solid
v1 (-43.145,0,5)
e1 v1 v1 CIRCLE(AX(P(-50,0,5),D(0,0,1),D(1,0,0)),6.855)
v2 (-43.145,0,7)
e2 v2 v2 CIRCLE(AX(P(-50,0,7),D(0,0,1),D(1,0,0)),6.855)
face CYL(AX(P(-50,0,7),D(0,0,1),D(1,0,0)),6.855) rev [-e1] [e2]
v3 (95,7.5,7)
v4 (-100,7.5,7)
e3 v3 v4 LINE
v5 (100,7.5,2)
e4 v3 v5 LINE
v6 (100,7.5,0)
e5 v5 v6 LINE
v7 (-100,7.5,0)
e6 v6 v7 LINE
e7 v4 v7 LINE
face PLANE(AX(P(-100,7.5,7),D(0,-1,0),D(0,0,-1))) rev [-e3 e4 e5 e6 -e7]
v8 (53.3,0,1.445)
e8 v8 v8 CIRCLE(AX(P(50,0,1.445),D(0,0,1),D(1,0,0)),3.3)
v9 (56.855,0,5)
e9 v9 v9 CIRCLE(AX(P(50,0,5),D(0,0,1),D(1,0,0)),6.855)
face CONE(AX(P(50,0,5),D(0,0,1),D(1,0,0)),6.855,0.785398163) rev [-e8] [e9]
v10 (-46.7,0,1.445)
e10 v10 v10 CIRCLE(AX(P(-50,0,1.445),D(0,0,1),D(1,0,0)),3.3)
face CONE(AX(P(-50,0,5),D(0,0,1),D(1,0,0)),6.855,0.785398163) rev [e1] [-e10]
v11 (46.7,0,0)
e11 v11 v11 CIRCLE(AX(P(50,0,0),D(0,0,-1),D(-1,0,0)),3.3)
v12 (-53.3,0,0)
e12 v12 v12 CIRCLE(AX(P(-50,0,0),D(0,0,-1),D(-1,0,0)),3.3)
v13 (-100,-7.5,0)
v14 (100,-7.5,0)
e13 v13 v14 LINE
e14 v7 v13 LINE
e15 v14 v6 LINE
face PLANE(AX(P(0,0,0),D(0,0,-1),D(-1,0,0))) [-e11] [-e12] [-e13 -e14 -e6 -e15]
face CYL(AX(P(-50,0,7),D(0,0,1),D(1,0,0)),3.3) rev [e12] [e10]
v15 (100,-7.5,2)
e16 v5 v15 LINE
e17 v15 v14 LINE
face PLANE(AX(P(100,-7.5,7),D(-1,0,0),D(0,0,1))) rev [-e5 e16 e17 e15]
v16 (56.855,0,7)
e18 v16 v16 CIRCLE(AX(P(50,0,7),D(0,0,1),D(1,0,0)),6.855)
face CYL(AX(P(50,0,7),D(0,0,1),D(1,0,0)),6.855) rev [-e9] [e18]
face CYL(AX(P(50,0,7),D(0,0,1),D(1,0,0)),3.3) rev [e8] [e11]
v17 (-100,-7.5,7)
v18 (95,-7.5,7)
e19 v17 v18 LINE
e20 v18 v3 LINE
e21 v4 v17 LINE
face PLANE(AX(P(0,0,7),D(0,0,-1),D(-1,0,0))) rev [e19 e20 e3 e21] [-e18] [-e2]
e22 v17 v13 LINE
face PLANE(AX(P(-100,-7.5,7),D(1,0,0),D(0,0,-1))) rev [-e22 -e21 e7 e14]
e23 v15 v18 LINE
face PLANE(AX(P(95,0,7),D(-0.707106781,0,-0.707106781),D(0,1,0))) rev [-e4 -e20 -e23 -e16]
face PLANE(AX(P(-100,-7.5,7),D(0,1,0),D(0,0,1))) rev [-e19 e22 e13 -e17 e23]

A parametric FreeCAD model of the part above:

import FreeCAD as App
import Part
import Sketcher

V = App.Vector
Q = App.Units.Quantity


def edges_at(feature, points):
    """Names of the edges that pass closest to the given points."""
    edges = feature.Shape.Edges
    near = lambda p: min(range(len(edges)), key=lambda i: edges[i].distToShape(Part.Vertex(*p))[0])
    return sorted({f"Edge{near(p) + 1}" for p in points})


def add_polygon(sketch, points):
    """Adds a closed chain of lines whose ends are joined by coincident constraints."""
    first, n = sketch.GeometryCount, len(points)
    for a, b in zip(points, points[1:] + points[:1]):
        sketch.addGeometry(Part.LineSegment(App.Vector(*a, 0), App.Vector(*b, 0)), False)
    for i in range(n):
        sketch.addConstraint(Sketcher.Constraint("Coincident", first + i, 2, first + (i + 1) % n, 1))

doc = App.newDocument("Part")
params = doc.addObject("Spreadsheet::Sheet", "Params")
for row, (alias, value) in enumerate([
    ("sketch1_width", "200 mm"),
    ("sketch1_height", "15 mm"),
    ("pad1_length", "7 mm"),
    ("chamfer_size", "5 mm"),
    ("sketch2_height", "2 mm"),
    ("groove_angle", "360 deg"),
    ("linearpattern_pitch", "100 mm"),
], start=1):
    params.set(f"A{row}", alias)
    params.set(f"B{row}", "=" + value)
    params.setAlias(f"B{row}", alias)

body = doc.addObject("PartDesign::Body", "Body")

sketch1 = doc.addObject("Sketcher::SketchObject", "Sketch")
body.addObject(sketch1)
sketch1.AttachmentSupport = (doc.XY_Plane, [""])
sketch1.MapMode = "FlatFace"
add_polygon(sketch1, [(-100, 8), (-100, -8), (100, -8), (100, 8)])
sketch1.addConstraint(Sketcher.Constraint("Vertical", 0))
sketch1.addConstraint(Sketcher.Constraint("Horizontal", 1))
sketch1.addConstraint(Sketcher.Constraint("Vertical", 2))
sketch1.addConstraint(Sketcher.Constraint("Horizontal", 3))
sketch1.addConstraint(Sketcher.Constraint("Symmetric", 0, 2, 2, 2, -1, 1))
sketch1.addConstraint(Sketcher.Constraint("DistanceX", 1, 1, 1, 2, Q("200 mm")))
sketch1.addConstraint(Sketcher.Constraint("DistanceY", 0, 2, 0, 1, Q("15 mm")))
sketch1.setExpression("Constraints[9]", "Params.sketch1_width")
sketch1.setExpression("Constraints[10]", "Params.sketch1_height")
pad1 = doc.addObject("PartDesign::Pad", "Pad")
body.addObject(pad1)
pad1.Profile = sketch1
pad1.setExpression("Length", "Params.pad1_length")
doc.recompute()

chamfer = doc.addObject("PartDesign::Chamfer", "Chamfer")
body.addObject(chamfer)
chamfer.Base = (pad1, edges_at(pad1, [(100, 0, 7)]))
chamfer.setExpression("Size", "Params.chamfer_size")

sketch2 = doc.addObject("Sketcher::SketchObject", "Sketch001")
body.addObject(sketch2)
sketch2.AttachmentSupport = (doc.YZ_Plane, [""])
sketch2.MapMode = "FlatFace"
sketch2.AttachmentOffset = App.Placement(V(0, 0, -50), App.Rotation())
add_polygon(sketch2, [(0, -25), (0, 7), (-6.9, 7), (-6.9, 5), (-3.3, 1.4), (-3.3, -23)])
sketch2.addConstraint(Sketcher.Constraint("Vertical", 0))
sketch2.addConstraint(Sketcher.Constraint("Horizontal", 1))
sketch2.addConstraint(Sketcher.Constraint("Vertical", 2))
sketch2.addConstraint(Sketcher.Constraint("Vertical", 4))
sketch2.addConstraint(Sketcher.Constraint("PointOnObject", 0, 2, -2))
sketch2.addConstraint(Sketcher.Constraint("DistanceY", 2, 2, 2, 1, Q("2 mm")))
sketch2.addConstraint(Sketcher.Constraint("Angle", 3, Q("-45 deg")))
sketch2.addConstraint(Sketcher.Constraint("Angle", 5, Q("-31 deg")))
sketch2.addConstraint(Sketcher.Constraint("DistanceY", -1, 1, 0, 2, Q("7 mm")))
sketch2.addConstraint(Sketcher.Constraint("DistanceY", 4, 2, -1, 1, Q("23 mm")))
sketch2.addConstraint(Sketcher.Constraint("DistanceX", 3, 2, -1, 1, Q("3.3 mm")))
sketch2.addConstraint(Sketcher.Constraint("DistanceX", 1, 2, 1, 1, Q("6.855 mm")))
sketch2.setExpression("Constraints[11]", "Params.sketch2_height")
groove = doc.addObject("PartDesign::Groove", "Groove")
body.addObject(groove)
groove.Profile = sketch2
groove.ReferenceAxis = (sketch2, ["V_Axis"])
groove.setExpression("Angle", "Params.groove_angle")
doc.recompute()

linearpattern = doc.addObject("PartDesign::LinearPattern", "LinearPattern")
body.addObject(linearpattern)
linearpattern.Originals = [groove]
linearpattern.Direction = (doc.X_Axis, [""])
linearpattern.Mode = "offset"
linearpattern.setExpression("Offset", "Params.linearpattern_pitch")
linearpattern.Occurrences = 2
body.Tip = linearpattern

doc.recompute()
